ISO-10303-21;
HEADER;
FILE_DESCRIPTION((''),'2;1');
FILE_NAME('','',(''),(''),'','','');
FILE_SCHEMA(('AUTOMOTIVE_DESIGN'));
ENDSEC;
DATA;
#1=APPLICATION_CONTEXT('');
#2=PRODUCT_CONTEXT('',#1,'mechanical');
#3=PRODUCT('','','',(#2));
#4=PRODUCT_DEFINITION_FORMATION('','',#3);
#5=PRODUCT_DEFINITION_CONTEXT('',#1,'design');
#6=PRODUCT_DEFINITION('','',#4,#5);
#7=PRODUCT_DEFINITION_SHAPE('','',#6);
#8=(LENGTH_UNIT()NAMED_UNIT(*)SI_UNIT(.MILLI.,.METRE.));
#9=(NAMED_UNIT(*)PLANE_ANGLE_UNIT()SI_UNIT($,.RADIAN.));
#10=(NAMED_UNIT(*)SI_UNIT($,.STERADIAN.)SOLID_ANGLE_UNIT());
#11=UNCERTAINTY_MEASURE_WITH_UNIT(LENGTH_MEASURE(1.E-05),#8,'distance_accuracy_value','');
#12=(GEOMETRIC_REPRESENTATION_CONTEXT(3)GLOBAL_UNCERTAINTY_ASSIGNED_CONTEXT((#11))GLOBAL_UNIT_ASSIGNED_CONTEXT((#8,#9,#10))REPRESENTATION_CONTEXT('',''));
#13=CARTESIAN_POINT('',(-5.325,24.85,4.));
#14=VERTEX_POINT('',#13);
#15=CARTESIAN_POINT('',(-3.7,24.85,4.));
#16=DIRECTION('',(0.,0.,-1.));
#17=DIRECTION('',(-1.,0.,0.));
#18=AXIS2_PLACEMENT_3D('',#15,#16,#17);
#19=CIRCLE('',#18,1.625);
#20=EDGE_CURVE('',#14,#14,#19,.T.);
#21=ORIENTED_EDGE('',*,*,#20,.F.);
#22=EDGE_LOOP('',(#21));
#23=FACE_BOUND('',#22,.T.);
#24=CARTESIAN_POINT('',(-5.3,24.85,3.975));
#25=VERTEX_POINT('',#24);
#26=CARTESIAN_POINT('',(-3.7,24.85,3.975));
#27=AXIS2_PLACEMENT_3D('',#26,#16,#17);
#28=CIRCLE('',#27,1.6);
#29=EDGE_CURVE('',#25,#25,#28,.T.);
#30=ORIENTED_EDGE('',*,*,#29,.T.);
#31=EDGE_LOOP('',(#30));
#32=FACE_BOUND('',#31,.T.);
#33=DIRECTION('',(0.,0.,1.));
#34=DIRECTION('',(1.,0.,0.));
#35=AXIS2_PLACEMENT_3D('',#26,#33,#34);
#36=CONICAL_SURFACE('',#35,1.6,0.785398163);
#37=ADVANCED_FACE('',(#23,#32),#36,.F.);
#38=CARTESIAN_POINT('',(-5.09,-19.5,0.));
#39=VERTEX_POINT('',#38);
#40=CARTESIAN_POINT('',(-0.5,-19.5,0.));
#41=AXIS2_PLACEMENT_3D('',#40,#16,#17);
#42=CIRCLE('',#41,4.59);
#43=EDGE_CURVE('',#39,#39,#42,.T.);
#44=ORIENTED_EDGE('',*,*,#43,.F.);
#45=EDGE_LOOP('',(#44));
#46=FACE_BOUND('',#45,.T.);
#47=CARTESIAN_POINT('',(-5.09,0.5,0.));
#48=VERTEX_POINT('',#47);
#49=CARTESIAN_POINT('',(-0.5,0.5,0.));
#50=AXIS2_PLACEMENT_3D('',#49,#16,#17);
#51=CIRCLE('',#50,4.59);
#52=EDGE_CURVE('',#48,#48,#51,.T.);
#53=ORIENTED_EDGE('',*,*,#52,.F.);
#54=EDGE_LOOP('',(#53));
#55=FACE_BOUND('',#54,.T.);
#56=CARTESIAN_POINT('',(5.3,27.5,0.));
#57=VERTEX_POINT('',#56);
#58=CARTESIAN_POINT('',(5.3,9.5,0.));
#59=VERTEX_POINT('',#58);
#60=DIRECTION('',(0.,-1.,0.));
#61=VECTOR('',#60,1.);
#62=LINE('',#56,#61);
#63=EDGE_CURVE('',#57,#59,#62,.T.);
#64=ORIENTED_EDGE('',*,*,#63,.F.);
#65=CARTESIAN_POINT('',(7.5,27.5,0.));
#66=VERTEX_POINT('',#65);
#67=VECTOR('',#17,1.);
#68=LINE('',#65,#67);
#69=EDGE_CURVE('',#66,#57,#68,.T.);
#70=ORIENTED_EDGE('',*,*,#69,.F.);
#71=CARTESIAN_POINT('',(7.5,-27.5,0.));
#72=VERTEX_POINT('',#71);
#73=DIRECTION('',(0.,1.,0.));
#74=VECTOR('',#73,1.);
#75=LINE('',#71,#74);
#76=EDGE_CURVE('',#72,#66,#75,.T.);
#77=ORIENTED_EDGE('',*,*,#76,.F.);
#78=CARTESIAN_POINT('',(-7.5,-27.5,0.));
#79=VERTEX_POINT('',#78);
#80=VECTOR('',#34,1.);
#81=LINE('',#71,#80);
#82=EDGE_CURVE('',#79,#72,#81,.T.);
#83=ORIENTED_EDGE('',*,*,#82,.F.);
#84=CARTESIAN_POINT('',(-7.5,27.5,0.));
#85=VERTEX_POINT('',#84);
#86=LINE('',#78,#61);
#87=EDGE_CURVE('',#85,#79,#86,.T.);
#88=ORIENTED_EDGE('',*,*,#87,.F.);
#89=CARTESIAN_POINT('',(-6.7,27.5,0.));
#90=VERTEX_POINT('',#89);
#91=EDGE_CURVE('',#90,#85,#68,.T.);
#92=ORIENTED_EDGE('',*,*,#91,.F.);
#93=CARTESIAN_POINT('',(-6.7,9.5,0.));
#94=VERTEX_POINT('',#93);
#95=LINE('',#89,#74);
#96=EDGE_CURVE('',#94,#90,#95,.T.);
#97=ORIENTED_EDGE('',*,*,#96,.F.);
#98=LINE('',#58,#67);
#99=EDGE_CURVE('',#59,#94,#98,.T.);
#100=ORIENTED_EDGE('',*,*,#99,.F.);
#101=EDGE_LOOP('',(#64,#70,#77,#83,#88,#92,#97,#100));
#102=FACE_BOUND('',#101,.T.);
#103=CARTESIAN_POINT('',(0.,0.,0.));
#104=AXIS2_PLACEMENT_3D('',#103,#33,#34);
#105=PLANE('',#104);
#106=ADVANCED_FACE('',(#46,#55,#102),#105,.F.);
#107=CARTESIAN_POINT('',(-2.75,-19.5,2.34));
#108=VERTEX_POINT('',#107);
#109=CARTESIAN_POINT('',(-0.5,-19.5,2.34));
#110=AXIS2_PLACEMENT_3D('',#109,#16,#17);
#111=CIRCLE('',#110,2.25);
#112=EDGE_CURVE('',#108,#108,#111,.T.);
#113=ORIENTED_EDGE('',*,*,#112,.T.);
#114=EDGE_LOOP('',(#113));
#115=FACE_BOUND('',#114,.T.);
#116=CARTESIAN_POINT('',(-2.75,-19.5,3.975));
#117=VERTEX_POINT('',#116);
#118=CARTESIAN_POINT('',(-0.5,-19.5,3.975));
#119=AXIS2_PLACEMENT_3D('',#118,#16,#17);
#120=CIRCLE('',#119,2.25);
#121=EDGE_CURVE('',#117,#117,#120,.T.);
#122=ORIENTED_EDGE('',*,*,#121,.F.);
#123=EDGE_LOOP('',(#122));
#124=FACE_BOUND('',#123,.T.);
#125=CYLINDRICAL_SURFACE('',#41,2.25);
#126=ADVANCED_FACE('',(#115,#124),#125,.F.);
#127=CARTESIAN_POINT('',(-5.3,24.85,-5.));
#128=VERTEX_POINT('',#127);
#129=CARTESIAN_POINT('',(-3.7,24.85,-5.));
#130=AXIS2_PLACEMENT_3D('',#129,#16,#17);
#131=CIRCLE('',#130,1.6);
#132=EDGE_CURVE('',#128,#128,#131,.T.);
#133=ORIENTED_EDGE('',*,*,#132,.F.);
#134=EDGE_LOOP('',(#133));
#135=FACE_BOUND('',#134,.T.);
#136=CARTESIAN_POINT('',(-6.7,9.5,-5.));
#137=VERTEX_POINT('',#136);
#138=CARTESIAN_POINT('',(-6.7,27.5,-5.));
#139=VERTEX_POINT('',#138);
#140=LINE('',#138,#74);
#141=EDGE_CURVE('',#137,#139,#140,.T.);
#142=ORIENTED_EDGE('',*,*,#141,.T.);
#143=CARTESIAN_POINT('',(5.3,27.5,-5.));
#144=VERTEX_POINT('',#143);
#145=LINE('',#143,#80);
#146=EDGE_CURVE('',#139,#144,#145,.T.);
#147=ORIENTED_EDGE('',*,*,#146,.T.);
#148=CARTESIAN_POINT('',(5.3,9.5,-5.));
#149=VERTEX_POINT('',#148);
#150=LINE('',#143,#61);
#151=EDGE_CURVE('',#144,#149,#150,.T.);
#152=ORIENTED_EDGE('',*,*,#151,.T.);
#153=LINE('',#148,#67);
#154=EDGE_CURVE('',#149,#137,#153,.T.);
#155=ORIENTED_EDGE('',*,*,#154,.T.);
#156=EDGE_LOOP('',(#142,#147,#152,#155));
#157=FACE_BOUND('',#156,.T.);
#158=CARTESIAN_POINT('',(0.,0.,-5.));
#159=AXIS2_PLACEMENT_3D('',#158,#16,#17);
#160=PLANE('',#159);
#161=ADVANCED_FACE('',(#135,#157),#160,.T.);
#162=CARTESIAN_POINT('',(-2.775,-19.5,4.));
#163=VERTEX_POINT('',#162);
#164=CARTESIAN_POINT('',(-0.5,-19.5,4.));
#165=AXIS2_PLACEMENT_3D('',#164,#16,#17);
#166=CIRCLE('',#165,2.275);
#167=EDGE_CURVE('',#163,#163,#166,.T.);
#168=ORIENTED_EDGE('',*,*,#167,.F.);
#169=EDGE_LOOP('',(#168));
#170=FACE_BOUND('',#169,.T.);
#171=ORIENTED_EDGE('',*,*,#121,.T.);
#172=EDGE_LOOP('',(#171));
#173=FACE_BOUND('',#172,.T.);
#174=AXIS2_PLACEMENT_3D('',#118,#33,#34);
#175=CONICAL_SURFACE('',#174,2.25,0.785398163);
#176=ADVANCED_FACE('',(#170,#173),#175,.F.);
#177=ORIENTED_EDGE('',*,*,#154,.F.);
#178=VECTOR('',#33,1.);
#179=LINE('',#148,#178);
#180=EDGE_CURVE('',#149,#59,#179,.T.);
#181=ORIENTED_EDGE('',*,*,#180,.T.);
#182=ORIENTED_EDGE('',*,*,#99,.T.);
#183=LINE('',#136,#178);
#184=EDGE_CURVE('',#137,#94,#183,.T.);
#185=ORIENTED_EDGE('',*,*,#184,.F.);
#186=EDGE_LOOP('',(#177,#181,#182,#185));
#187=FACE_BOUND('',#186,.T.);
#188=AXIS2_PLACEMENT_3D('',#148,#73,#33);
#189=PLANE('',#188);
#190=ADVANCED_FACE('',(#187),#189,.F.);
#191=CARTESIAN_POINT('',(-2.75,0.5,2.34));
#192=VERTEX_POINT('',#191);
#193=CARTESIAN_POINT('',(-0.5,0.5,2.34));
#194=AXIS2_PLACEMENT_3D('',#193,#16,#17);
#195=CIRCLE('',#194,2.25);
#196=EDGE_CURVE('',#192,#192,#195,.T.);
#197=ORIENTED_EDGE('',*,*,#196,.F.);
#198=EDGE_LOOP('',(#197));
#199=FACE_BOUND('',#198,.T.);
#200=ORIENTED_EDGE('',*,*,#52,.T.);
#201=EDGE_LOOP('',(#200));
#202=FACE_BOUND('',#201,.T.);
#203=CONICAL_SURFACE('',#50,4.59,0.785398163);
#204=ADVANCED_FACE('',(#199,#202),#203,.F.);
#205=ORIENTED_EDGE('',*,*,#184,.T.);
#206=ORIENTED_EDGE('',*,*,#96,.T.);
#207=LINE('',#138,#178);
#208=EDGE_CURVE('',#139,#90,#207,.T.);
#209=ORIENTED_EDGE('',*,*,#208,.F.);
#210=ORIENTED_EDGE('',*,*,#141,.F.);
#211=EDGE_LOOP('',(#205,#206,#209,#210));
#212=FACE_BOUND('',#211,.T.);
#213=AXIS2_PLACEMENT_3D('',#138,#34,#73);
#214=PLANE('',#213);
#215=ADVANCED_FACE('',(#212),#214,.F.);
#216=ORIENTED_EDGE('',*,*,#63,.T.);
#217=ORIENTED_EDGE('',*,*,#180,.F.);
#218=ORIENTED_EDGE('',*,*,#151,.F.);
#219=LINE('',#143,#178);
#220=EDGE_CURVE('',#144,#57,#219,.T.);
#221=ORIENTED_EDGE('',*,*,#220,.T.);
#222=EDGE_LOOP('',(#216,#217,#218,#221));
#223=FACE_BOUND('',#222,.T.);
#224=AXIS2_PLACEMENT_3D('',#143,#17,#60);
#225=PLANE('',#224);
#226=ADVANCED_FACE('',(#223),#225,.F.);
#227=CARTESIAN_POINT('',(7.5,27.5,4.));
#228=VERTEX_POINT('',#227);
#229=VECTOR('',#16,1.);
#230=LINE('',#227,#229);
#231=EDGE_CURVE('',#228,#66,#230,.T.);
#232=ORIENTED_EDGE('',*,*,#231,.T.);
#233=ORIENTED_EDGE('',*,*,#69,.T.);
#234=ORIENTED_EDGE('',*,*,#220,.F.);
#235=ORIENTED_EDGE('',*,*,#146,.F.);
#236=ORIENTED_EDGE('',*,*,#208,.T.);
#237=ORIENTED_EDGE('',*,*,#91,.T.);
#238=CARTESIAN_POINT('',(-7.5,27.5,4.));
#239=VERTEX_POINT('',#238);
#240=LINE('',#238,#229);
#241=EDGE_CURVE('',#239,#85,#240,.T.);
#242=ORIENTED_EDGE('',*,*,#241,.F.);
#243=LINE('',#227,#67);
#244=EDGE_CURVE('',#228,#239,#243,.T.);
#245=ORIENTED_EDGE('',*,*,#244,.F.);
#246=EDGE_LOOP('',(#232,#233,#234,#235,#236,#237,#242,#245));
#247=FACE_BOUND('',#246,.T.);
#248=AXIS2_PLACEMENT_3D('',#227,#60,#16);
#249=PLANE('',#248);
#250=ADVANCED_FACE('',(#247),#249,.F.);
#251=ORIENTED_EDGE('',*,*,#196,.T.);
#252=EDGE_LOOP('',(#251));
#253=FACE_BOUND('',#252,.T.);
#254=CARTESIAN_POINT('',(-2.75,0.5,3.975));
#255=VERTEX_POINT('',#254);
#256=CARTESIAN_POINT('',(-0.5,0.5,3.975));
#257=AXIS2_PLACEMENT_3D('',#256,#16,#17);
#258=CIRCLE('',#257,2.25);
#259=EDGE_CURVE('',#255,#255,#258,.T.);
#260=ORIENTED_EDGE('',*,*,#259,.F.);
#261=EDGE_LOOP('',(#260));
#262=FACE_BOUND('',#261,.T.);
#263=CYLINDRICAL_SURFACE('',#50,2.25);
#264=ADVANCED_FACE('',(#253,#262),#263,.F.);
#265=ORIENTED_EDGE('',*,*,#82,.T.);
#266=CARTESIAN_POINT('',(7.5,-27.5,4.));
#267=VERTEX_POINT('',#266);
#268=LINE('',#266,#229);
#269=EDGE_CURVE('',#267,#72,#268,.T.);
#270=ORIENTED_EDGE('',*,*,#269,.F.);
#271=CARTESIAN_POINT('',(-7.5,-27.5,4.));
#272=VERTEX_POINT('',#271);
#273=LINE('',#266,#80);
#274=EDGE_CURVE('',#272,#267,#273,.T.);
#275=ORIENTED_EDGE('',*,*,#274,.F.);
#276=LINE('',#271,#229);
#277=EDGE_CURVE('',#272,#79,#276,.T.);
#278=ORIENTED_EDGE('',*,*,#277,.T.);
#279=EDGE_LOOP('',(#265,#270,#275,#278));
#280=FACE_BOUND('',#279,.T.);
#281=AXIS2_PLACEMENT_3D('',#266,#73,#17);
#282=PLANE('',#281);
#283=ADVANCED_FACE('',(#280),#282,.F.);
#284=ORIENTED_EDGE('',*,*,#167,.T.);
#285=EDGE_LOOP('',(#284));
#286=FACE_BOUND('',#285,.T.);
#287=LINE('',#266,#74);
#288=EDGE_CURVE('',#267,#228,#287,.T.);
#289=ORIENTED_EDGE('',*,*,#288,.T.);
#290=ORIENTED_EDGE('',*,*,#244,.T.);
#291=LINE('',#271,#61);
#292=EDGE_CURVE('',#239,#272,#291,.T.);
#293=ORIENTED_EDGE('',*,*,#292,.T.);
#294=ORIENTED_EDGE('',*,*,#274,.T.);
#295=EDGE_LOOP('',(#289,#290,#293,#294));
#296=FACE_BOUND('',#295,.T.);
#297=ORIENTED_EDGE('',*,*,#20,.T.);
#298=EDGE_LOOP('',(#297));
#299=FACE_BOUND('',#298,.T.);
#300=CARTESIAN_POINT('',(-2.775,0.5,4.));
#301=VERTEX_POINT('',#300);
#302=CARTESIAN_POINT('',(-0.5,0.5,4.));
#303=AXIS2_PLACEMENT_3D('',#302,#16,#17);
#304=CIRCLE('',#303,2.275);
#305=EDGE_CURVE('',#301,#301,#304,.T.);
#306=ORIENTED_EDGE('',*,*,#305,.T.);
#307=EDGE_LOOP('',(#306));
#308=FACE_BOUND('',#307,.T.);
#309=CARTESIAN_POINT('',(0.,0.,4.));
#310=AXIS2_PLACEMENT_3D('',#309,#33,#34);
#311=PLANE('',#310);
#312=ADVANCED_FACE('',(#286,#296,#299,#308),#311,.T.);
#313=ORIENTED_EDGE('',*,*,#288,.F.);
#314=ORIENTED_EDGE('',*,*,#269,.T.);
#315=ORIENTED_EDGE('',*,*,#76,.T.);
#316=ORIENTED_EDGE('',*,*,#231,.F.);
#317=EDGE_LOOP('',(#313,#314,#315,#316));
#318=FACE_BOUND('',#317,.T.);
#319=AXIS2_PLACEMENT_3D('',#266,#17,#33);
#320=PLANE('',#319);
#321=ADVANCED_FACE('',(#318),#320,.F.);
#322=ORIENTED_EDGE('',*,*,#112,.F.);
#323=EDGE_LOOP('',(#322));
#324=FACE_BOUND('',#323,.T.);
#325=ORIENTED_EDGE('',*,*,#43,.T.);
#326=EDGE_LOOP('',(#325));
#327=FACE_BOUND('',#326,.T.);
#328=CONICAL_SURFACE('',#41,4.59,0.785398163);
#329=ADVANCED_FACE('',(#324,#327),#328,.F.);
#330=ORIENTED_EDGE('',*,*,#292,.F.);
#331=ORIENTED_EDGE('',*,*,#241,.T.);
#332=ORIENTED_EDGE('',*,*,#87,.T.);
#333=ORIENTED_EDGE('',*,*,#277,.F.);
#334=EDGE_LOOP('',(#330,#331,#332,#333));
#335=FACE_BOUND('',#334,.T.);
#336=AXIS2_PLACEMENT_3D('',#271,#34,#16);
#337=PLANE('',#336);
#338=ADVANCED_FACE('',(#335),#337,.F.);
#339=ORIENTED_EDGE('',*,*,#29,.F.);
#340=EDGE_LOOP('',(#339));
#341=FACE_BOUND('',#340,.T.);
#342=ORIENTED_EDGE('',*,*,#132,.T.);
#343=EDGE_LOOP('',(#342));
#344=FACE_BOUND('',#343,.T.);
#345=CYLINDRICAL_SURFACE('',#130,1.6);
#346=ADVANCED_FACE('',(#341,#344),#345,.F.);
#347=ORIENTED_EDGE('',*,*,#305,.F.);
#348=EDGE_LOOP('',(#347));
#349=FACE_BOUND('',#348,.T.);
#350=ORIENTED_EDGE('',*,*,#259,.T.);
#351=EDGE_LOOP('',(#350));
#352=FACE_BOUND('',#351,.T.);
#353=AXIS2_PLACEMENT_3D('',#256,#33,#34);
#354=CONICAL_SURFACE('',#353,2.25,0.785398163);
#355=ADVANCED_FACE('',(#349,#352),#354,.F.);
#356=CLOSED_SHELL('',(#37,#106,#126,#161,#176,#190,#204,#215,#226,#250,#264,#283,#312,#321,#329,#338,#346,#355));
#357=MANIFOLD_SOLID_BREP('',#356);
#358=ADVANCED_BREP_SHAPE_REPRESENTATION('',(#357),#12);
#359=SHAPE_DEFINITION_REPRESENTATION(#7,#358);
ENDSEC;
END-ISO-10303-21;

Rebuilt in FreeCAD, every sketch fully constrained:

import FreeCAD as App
import Part
import Sketcher

V = App.Vector
Q = App.Units.Quantity

doc = App.newDocument("Part")
body = doc.addObject("PartDesign::Body", "Body")

# Sketch on XY plane
sketch1 = body.newObject("Sketcher::SketchObject", "Sketch")
sketch1.AttachmentSupport = (doc.getObject("XY_Plane"), [""])
sketch1.MapMode = "FlatFace"
sketch1.addGeometry([
    Part.LineSegment(V(-8, 28, 0), V(-8, -28, 0)),
    Part.LineSegment(V(-8, -28, 0), V(8, -28, 0)),
    Part.LineSegment(V(8, -28, 0), V(8, 28, 0)),
    Part.LineSegment(V(8, 28, 0), V(-8, 28, 0)),
], False)
sketch1.addConstraint([
    Sketcher.Constraint("Coincident", 0, 2, 1, 1),
    Sketcher.Constraint("Coincident", 1, 2, 2, 1),
    Sketcher.Constraint("Coincident", 2, 2, 3, 1),
    Sketcher.Constraint("Coincident", 3, 2, 0, 1),
    Sketcher.Constraint("Vertical", 0),
    Sketcher.Constraint("Horizontal", 1),
    Sketcher.Constraint("Vertical", 2),
    Sketcher.Constraint("Horizontal", 3),
    Sketcher.Constraint("Symmetric", 0, 2, 2, 2, -1, 1),
    Sketcher.Constraint("DistanceX", 1, 1, 1, 2, Q("15 mm")),
    Sketcher.Constraint("DistanceY", 0, 2, 0, 1, Q("55 mm")),
])
pad1 = body.newObject("PartDesign::Pad", "Pad")
pad1.Profile = sketch1
pad1.Length = 4

# Sketch on YZ plane
sketch2 = body.newObject("Sketcher::SketchObject", "Sketch001")
sketch2.AttachmentSupport = (doc.getObject("YZ_Plane"), [""])
sketch2.MapMode = "FlatFace"
sketch2.AttachmentOffset = App.Placement(V(0, 0, -0.5), App.Rotation())
sketch2.addGeometry([
    Part.LineSegment(V(0.5, 4, 0), V(0.5, 0, 0)),  # 0
    Part.LineSegment(V(0.5, 0, 0), V(5.09, 0, 0)),  # 1
    Part.LineSegment(V(5.09, 0, 0), V(2.75, 2.34, 0)),  # 2
    Part.LineSegment(V(2.75, 2.34, 0), V(2.75, 3.975, 0)),  # 3
    Part.LineSegment(V(2.75, 3.975, 0), V(2.775, 4, 0)),  # 4
    Part.LineSegment(V(2.775, 4, 0), V(0.5, 4, 0)),  # 5
], False)
sketch2.addGeometry(Part.LineSegment(V(0.5, 0, 0), V(0.5, 4, 0)), True)  # axis
sketch2.addConstraint([
    Sketcher.Constraint("Coincident", 0, 2, 1, 1),
    Sketcher.Constraint("Coincident", 1, 2, 2, 1),
    Sketcher.Constraint("Coincident", 2, 2, 3, 1),
    Sketcher.Constraint("Coincident", 3, 2, 4, 1),
    Sketcher.Constraint("Coincident", 4, 2, 5, 1),
    Sketcher.Constraint("Coincident", 5, 2, 0, 1),
    Sketcher.Constraint("Vertical", 0),
    Sketcher.Constraint("Horizontal", 1),
    Sketcher.Constraint("Vertical", 3),
    Sketcher.Constraint("Horizontal", 5),
    Sketcher.Constraint("Vertical", 6),
    Sketcher.Constraint("Coincident", 6, 1, 0, 2),
    Sketcher.Constraint("PointOnObject", 0, 2, -1),
    Sketcher.Constraint("Perpendicular", 2, 4),
    Sketcher.Constraint("Horizontal", 4, 2, 6, 2),
    Sketcher.Constraint("DistanceY", 0, 2, 0, 1, Q("4 mm")),
    Sketcher.Constraint("Angle", 2, Q("135 deg")),
    Sketcher.Constraint("DistanceX", 1, 1, 1, 2, Q("4.59 mm")),
    Sketcher.Constraint("DistanceX", -1, 1, 0, 2, Q("0.5 mm")),
    Sketcher.Constraint("DistanceX", 5, 2, 5, 1, Q("2.275 mm")),
    Sketcher.Constraint("DistanceY", 3, 1, 3, 2, Q("1.635 mm")),
])
groove = body.newObject("PartDesign::Groove", "Groove")
groove.Profile = sketch2
groove.ReferenceAxis = (sketch2, ["Axis0"])
groove.Angle = 360
doc.recompute()

linearpattern = body.newObject("PartDesign::LinearPattern", "LinearPattern")
linearpattern.Originals = [groove]
linearpattern.Direction = (doc.getObject("Y_Axis"), [""])
linearpattern.Mode = "offset"
linearpattern.Offset = 20
linearpattern.Occurrences = 2
linearpattern.Reversed = True
body.Tip = linearpattern

# Sketch on XY plane
sketch3 = body.newObject("Sketcher::SketchObject", "Sketch002")
sketch3.AttachmentSupport = (doc.getObject("XY_Plane"), [""])
sketch3.MapMode = "FlatFace"
sketch3.addGeometry([
    Part.LineSegment(V(5, 28, 0), V(5, 10, 0)),
    Part.LineSegment(V(5, 10, 0), V(-7, 10, 0)),
    Part.LineSegment(V(-7, 10, 0), V(-7, 28, 0)),
    Part.LineSegment(V(-7, 28, 0), V(5, 28, 0)),
], False)
sketch3.addConstraint([
    Sketcher.Constraint("Coincident", 0, 2, 1, 1),
    Sketcher.Constraint("Coincident", 1, 2, 2, 1),
    Sketcher.Constraint("Coincident", 2, 2, 3, 1),
    Sketcher.Constraint("Coincident", 3, 2, 0, 1),
    Sketcher.Constraint("Vertical", 0),
    Sketcher.Constraint("Horizontal", 1),
    Sketcher.Constraint("Vertical", 2),
    Sketcher.Constraint("Horizontal", 3),
    Sketcher.Constraint("DistanceX", 1, 2, 1, 1, Q("12 mm")),
    Sketcher.Constraint("DistanceY", 0, 2, 0, 1, Q("18 mm")),
    Sketcher.Constraint("DistanceX", -1, 1, 0, 2, Q("5.3 mm")),
    Sketcher.Constraint("DistanceY", -1, 1, 0, 2, Q("9.5 mm")),
])
pad2 = body.newObject("PartDesign::Pad", "Pad001")
pad2.Profile = sketch3
pad2.Length = 5
pad2.Reversed = True

# Sketch on YZ plane
sketch4 = body.newObject("Sketcher::SketchObject", "Sketch003")
sketch4.AttachmentSupport = (doc.getObject("YZ_Plane"), [""])
sketch4.MapMode = "FlatFace"
sketch4.AttachmentOffset = App.Placement(V(0, 0, -3.7), App.Rotation())
sketch4.addGeometry([
    Part.LineSegment(V(24.85, 4, 0), V(24.85, -5, 0)),  # 0
    Part.LineSegment(V(24.85, -5, 0), V(26.45, -5, 0)),  # 1
    Part.LineSegment(V(26.45, -5, 0), V(26.45, 3.975, 0)),  # 2
    Part.LineSegment(V(26.45, 3.975, 0), V(26.475, 4, 0)),  # 3
    Part.LineSegment(V(26.475, 4, 0), V(24.85, 4, 0)),  # 4
], False)
sketch4.addGeometry(Part.LineSegment(V(24.85, -5, 0), V(24.85, 4, 0)), True)  # axis
sketch4.addConstraint([
    Sketcher.Constraint("Coincident", 0, 2, 1, 1),
    Sketcher.Constraint("Coincident", 1, 2, 2, 1),
    Sketcher.Constraint("Coincident", 2, 2, 3, 1),
    Sketcher.Constraint("Coincident", 3, 2, 4, 1),
    Sketcher.Constraint("Coincident", 4, 2, 0, 1),
    Sketcher.Constraint("Vertical", 0),
    Sketcher.Constraint("Horizontal", 1),
    Sketcher.Constraint("Vertical", 2),
    Sketcher.Constraint("Horizontal", 4),
    Sketcher.Constraint("Vertical", 5),
    Sketcher.Constraint("Coincident", 5, 1, 0, 2),
    Sketcher.Constraint("Horizontal", 3, 2, 5, 2),
    Sketcher.Constraint("DistanceY", 0, 2, 0, 1, Q("9 mm")),
    Sketcher.Constraint("Angle", 3, Q("45 deg")),
    Sketcher.Constraint("DistanceX", 1, 1, 1, 2, Q("1.6 mm")),
    Sketcher.Constraint("DistanceY", 0, 2, -1, 1, Q("5 mm")),
    Sketcher.Constraint("DistanceX", 4, 2, 4, 1, Q("1.625 mm")),
    Sketcher.Constraint("DistanceX", -1, 1, 0, 2, Q("24.85 mm")),
])
groove2 = body.newObject("PartDesign::Groove", "Groove001")
groove2.Profile = sketch4
groove2.ReferenceAxis = (sketch4, ["Axis0"])
groove2.Angle = 360

doc.recompute()
